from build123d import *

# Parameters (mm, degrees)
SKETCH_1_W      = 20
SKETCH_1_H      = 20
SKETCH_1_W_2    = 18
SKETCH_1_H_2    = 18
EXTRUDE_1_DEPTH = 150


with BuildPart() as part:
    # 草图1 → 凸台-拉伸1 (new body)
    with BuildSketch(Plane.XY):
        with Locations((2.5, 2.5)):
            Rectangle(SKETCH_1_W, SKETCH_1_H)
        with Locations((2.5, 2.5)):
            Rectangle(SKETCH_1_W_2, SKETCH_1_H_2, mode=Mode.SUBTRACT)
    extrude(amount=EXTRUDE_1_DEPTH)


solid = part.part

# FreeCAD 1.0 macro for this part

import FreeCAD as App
import Part
import Sketcher


def add_polygon(sketch, points):
    """Adds a closed chain of lines whose ends are joined by coincident constraints."""
    first, n = sketch.GeometryCount, len(points)
    for a, b in zip(points, points[1:] + points[:1]):
        sketch.addGeometry(Part.LineSegment(App.Vector(*a, 0), App.Vector(*b, 0)), False)
    for i in range(n):
        sketch.addConstraint(Sketcher.Constraint("Coincident", first + i, 2, first + (i + 1) % n, 1))

doc = App.newDocument("Part")
body = doc.addObject("PartDesign::Body", "Body")

sketch1 = doc.addObject("Sketcher::SketchObject", "Sketch")
body.addObject(sketch1)
sketch1.AttachmentSupport = (doc.XY_Plane, [""])
sketch1.MapMode = "FlatFace"
add_polygon(sketch1, [(-8, 12), (-8, -8), (12, -8), (12, 12)])
add_polygon(sketch1, [(12, -6), (-6, -6), (-6, 12), (12, 12)])
sketch1.addConstraint(Sketcher.Constraint("Vertical", 0))
sketch1.addConstraint(Sketcher.Constraint("Horizontal", 1))
sketch1.addConstraint(Sketcher.Constraint("Vertical", 2))
sketch1.addConstraint(Sketcher.Constraint("Horizontal", 3))
sketch1.addConstraint(Sketcher.Constraint("Horizontal", 4))
sketch1.addConstraint(Sketcher.Constraint("Vertical", 5))
sketch1.addConstraint(Sketcher.Constraint("Horizontal", 6))
sketch1.addConstraint(Sketcher.Constraint("Vertical", 7))
sketch1.addConstraint(Sketcher.Constraint("Equal", 3, 0))
sketch1.addConstraint(Sketcher.Constraint("Equal", 6, 5))
sketch1.addConstraint(Sketcher.Constraint("DistanceX", 1, 1, 1, 2, 20.0))
sketch1.addConstraint(Sketcher.Constraint("DistanceX", 4, 2, 4, 1, 18.0))
sketch1.addConstraint(Sketcher.Constraint("DistanceX", 0, 2, 4, 2, 1.0))
sketch1.addConstraint(Sketcher.Constraint("DistanceY", 0, 2, 4, 2, 1.0))
sketch1.addConstraint(Sketcher.Constraint("DistanceX", 0, 2, -1, 1, 7.5))
sketch1.addConstraint(Sketcher.Constraint("DistanceY", 0, 2, -1, 1, 7.5))
pad1 = doc.addObject("PartDesign::Pad", "Pad")
body.addObject(pad1)
pad1.Profile = sketch1
pad1.Length = 150

doc.recompute()
